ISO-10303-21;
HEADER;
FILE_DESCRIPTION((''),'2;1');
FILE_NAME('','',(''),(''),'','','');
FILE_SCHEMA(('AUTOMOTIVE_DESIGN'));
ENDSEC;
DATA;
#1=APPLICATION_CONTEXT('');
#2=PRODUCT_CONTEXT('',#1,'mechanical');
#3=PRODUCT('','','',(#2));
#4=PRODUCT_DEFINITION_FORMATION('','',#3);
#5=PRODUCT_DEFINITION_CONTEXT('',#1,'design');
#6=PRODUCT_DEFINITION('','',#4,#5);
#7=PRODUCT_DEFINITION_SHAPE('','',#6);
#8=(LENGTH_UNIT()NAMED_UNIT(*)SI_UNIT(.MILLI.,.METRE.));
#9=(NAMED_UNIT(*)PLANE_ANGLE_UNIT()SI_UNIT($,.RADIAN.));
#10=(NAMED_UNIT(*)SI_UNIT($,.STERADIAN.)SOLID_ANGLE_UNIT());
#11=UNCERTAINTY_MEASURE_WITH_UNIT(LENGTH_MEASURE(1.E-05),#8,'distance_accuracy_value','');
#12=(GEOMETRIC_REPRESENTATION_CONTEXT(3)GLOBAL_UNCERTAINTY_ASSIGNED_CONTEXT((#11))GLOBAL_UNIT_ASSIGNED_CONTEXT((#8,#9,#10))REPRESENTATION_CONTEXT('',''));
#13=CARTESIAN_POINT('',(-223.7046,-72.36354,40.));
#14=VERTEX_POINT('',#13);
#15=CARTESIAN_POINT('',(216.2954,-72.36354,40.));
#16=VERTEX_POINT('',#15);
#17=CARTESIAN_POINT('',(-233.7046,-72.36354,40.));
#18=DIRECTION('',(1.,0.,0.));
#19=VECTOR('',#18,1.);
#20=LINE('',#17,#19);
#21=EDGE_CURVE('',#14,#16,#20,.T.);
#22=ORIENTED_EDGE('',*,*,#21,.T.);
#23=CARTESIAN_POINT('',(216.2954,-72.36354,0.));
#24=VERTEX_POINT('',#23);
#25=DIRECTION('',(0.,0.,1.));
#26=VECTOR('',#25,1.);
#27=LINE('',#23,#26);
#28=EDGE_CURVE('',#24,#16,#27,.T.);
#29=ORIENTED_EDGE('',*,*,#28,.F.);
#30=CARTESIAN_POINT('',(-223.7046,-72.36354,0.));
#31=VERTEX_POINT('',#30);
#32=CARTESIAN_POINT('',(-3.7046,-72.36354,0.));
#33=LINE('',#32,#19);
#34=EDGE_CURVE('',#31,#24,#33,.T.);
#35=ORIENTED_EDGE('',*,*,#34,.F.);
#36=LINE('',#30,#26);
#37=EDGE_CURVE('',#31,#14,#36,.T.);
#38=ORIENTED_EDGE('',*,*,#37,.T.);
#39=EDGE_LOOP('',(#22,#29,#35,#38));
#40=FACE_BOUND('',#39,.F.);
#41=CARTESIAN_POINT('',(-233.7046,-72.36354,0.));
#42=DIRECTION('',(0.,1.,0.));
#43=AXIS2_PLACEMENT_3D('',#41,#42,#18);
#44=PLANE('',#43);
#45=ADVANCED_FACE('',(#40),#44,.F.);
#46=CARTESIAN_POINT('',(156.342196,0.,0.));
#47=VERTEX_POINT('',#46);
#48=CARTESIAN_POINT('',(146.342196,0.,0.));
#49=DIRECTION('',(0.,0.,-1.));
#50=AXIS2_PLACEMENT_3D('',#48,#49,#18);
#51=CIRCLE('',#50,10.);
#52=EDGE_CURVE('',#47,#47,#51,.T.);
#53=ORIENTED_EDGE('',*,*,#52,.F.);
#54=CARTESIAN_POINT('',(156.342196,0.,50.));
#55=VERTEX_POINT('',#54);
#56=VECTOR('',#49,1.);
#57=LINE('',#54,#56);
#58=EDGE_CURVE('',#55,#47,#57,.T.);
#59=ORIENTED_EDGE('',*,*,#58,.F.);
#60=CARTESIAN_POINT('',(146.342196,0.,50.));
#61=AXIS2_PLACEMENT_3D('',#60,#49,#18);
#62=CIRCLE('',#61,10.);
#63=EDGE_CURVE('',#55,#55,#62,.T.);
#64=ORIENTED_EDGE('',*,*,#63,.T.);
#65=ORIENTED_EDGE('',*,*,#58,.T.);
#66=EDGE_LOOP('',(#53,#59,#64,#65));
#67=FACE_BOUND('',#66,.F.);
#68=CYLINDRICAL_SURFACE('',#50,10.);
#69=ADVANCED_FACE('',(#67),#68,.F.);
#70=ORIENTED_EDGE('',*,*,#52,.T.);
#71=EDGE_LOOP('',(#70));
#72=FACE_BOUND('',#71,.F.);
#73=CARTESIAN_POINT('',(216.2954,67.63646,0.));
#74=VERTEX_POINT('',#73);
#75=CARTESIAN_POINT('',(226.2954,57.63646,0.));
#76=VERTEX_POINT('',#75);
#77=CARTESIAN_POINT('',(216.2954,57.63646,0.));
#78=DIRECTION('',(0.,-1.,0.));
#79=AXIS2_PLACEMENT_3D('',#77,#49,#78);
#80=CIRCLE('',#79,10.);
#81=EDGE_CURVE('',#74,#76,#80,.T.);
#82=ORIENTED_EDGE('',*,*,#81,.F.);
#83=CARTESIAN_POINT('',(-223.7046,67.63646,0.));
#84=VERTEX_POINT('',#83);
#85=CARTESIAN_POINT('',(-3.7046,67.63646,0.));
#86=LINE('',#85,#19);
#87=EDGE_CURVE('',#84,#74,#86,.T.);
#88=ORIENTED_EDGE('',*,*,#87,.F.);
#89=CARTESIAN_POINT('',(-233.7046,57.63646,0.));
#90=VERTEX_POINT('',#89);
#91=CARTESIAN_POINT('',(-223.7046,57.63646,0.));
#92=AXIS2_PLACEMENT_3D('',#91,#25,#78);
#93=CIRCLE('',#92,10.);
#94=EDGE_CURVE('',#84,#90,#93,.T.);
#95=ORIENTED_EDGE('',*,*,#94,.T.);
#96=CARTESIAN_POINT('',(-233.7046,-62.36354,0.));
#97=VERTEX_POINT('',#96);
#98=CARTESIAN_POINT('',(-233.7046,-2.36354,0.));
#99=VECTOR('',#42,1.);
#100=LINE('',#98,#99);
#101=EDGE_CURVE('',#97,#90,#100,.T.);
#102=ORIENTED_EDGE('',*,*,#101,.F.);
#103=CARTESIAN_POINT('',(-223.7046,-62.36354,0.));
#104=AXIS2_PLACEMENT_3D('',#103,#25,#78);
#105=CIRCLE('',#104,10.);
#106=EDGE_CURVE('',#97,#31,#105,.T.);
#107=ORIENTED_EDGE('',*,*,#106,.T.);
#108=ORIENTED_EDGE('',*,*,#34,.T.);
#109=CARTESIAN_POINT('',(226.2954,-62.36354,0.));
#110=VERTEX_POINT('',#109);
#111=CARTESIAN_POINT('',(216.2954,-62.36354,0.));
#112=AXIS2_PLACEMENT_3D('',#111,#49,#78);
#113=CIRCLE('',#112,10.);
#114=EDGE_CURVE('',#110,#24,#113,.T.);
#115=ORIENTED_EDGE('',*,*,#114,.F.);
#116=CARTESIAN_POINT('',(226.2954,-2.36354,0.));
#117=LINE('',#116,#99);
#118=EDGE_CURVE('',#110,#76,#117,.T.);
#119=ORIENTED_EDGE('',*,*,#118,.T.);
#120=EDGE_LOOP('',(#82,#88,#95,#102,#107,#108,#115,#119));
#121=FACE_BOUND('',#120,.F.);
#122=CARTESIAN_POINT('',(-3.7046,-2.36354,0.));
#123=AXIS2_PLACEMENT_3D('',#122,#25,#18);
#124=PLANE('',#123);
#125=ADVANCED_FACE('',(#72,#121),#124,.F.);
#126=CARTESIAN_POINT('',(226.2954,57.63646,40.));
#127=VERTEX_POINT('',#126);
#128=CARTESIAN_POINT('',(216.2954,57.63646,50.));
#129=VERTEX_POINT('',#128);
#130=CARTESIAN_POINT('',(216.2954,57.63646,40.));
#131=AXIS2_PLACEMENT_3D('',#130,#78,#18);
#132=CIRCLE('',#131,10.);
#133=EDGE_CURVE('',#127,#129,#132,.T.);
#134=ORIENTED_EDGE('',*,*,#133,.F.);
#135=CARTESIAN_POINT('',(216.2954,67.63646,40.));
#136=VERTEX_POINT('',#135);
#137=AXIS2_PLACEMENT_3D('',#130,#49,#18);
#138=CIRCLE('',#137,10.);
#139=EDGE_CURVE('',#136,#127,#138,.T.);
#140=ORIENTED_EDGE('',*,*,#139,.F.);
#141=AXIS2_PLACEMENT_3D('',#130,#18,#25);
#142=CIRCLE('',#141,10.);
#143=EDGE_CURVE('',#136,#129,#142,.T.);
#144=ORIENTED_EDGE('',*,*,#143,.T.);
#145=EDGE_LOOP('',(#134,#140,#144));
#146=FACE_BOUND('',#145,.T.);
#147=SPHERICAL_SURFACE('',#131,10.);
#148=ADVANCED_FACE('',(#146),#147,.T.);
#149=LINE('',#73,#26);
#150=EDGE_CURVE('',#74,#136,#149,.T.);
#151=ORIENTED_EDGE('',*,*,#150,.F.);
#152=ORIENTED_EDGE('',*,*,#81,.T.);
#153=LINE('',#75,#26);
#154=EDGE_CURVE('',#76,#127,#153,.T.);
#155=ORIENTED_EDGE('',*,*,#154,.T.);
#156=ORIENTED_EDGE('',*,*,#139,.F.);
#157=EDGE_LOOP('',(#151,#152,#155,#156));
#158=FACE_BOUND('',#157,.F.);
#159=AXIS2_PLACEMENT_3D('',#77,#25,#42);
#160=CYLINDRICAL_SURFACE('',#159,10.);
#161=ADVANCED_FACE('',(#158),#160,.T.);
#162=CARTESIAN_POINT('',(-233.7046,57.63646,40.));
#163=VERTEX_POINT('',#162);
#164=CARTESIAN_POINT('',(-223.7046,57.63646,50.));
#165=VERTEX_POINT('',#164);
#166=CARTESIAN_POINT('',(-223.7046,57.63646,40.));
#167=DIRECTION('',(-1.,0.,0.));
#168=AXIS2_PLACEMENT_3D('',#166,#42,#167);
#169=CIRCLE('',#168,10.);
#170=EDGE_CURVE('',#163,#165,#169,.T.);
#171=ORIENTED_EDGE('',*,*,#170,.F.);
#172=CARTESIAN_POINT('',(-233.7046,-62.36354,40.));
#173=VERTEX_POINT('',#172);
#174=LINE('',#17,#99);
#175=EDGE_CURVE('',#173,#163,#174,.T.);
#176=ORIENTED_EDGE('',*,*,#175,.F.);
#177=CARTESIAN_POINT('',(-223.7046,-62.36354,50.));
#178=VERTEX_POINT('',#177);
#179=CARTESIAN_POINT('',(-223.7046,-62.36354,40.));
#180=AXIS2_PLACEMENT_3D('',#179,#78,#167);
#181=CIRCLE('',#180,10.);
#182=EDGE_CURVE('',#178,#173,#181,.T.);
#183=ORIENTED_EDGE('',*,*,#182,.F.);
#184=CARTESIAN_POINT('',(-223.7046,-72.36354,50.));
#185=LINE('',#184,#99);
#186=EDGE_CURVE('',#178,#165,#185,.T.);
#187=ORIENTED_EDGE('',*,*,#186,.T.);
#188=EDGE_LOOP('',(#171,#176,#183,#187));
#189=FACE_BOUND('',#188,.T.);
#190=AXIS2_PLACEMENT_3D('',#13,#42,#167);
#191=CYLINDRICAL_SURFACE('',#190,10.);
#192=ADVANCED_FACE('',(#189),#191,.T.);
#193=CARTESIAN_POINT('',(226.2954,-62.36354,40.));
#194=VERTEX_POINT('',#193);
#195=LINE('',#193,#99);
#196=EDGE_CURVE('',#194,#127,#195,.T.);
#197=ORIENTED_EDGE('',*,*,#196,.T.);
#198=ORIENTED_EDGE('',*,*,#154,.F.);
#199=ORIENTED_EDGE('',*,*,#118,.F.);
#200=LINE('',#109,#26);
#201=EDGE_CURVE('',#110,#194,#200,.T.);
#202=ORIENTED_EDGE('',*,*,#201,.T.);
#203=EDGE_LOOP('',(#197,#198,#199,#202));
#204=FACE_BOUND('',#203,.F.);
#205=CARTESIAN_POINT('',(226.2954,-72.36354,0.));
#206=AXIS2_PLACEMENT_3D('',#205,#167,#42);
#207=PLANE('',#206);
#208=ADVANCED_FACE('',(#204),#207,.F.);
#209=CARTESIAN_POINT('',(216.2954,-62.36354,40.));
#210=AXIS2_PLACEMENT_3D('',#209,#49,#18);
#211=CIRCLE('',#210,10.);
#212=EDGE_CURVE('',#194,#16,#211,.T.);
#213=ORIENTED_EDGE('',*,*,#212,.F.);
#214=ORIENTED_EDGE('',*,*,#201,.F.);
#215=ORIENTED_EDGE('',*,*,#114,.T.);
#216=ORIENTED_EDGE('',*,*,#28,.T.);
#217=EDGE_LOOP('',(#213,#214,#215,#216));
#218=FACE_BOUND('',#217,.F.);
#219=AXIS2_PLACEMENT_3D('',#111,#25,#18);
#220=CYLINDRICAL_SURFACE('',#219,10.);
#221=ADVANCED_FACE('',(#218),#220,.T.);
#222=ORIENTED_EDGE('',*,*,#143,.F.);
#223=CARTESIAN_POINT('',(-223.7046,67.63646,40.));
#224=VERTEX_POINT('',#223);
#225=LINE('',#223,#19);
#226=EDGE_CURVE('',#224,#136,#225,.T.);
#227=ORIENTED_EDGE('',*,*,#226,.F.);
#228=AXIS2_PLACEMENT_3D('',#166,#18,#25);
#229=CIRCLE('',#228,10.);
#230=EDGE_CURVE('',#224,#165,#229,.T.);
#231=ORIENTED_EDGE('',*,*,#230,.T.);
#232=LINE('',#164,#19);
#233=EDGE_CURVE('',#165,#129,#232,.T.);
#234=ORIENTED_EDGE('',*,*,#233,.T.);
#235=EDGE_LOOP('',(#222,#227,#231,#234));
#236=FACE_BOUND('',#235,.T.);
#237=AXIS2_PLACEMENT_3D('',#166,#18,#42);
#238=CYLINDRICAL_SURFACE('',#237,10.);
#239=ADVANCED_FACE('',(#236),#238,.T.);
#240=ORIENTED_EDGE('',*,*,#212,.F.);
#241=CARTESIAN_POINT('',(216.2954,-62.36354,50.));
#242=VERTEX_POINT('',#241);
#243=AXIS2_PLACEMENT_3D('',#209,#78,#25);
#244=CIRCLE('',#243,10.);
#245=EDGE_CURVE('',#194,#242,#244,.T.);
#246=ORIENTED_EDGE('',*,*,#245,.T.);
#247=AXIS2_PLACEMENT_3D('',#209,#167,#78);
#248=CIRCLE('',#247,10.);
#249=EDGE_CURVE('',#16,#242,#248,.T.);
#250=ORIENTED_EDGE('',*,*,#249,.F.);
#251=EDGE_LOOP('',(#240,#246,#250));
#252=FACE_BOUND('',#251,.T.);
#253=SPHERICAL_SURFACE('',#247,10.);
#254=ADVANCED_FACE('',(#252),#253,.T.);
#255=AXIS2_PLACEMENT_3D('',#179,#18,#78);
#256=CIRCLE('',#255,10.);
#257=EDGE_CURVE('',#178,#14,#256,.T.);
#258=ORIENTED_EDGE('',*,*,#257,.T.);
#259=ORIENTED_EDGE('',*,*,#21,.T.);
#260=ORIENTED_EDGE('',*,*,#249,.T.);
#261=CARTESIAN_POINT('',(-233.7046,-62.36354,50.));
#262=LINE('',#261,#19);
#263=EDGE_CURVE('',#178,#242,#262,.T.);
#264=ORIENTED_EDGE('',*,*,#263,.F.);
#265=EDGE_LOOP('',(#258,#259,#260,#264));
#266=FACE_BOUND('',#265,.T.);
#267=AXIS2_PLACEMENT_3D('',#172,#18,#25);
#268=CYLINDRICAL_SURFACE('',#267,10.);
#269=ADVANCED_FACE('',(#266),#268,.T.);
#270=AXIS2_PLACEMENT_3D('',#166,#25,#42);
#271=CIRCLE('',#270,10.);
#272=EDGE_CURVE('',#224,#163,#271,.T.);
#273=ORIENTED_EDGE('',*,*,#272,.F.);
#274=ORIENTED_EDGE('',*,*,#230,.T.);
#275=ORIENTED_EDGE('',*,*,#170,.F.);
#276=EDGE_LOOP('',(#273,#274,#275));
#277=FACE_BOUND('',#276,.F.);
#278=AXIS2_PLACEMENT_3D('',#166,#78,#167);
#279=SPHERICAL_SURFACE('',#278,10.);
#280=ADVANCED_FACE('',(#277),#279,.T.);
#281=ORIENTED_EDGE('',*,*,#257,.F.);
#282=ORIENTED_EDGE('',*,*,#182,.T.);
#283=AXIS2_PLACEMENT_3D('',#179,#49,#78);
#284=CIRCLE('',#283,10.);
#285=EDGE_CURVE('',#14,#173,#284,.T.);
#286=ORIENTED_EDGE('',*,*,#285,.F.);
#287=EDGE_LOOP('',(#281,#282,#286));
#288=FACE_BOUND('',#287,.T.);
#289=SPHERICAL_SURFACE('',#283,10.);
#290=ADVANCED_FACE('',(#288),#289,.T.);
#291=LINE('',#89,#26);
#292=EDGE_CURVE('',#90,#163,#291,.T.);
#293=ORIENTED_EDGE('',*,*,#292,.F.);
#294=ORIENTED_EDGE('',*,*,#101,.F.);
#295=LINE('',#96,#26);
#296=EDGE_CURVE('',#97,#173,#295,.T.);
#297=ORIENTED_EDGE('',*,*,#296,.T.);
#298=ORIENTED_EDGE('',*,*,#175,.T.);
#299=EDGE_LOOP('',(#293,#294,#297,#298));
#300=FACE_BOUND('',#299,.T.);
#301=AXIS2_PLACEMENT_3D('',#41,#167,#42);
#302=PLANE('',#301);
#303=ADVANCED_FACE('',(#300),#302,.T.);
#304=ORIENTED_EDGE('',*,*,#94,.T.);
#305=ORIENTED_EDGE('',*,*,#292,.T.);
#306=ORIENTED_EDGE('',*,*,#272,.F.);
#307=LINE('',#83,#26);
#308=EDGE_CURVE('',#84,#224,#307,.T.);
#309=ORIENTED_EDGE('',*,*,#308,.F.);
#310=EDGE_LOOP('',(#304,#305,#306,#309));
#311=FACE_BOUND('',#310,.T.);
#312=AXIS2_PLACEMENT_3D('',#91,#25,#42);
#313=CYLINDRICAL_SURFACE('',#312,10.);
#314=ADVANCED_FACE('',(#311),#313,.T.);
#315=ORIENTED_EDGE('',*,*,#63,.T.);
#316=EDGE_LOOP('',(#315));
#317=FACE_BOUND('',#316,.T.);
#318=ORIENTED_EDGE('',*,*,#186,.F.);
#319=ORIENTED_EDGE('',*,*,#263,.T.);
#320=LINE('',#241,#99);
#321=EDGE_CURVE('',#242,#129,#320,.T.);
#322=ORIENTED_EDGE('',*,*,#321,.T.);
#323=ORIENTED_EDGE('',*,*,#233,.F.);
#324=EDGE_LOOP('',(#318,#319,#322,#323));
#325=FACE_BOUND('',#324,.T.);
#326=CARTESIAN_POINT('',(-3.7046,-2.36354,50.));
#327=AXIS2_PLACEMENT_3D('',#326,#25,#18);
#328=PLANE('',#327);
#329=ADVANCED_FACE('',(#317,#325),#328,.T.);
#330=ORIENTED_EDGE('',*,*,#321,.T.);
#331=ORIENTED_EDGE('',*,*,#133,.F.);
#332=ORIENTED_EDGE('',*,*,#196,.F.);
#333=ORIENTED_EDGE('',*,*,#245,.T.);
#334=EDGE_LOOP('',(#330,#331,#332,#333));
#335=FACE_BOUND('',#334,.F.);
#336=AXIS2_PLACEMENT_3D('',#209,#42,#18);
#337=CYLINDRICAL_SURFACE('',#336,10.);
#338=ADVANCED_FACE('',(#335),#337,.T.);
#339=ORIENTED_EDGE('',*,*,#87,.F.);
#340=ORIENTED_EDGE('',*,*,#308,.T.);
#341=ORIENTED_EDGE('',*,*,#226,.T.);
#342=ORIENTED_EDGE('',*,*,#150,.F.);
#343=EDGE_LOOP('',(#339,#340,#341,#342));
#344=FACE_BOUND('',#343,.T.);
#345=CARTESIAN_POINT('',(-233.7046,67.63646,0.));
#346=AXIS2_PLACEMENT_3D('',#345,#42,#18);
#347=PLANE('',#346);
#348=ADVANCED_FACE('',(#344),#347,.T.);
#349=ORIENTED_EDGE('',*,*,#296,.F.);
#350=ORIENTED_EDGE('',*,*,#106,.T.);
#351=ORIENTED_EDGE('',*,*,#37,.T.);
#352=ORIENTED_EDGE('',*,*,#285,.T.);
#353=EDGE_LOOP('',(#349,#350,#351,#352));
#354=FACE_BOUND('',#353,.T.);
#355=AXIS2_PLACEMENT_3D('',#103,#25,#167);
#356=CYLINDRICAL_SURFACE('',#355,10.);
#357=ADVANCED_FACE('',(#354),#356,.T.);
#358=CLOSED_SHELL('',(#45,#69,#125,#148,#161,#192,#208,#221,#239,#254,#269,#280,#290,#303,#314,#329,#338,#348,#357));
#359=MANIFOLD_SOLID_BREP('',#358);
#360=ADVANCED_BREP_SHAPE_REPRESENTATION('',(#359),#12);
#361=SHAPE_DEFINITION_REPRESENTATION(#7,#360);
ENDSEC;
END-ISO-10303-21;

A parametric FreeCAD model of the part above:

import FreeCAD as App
import Part
import Sketcher

V = App.Vector


def edges_at(feature, points):
    """Names of the edges that pass closest to the given points."""
    edges = feature.Shape.Edges
    near = lambda p: min(range(len(edges)), key=lambda i: edges[i].distToShape(Part.Vertex(*p))[0])
    return sorted({f"Edge{near(p) + 1}" for p in points})


def add_polygon(sketch, points):
    """Adds a closed chain of lines whose ends are joined by coincident constraints."""
    first, n = sketch.GeometryCount, len(points)
    for a, b in zip(points, points[1:] + points[:1]):
        sketch.addGeometry(Part.LineSegment(App.Vector(*a, 0), App.Vector(*b, 0)), False)
    for i in range(n):
        sketch.addConstraint(Sketcher.Constraint("Coincident", first + i, 2, first + (i + 1) % n, 1))

doc = App.newDocument("Part")
body = doc.addObject("PartDesign::Body", "Body")

sketch1 = body.newObject("Sketcher::SketchObject", "Sketch")
sketch1.AttachmentSupport = (doc.getObject("XY_Plane"), [""])
sketch1.MapMode = "FlatFace"
add_polygon(sketch1, [(-234, 68), (-234, -72), (226, -72), (226, 68)])
sketch1.addConstraint([
    Sketcher.Constraint("Vertical", 0),
    Sketcher.Constraint("Horizontal", 1),
    Sketcher.Constraint("Vertical", 2),
    Sketcher.Constraint("Horizontal", 3),
    Sketcher.Constraint("DistanceX", 1, 1, 1, 2, 460.0),
    Sketcher.Constraint("DistanceY", 0, 2, 0, 1, 140.0),
    Sketcher.Constraint("DistanceX", 0, 2, -1, 1, 233.7046),
    Sketcher.Constraint("DistanceY", 0, 2, -1, 1, 72.36354),
])
pad1 = body.newObject("PartDesign::Pad", "Pad")
pad1.Profile = sketch1
pad1.Length = 50

sketch2 = body.newObject("Sketcher::SketchObject", "Sketch001")
sketch2.AttachmentSupport = (doc.getObject("XY_Plane"), [""])
sketch2.MapMode = "FlatFace"
sketch2.addGeometry(Part.Circle(V(146, 0, 0), V(0, 0, 1), 10), False)
sketch2.addConstraint([
    Sketcher.Constraint("PointOnObject", 0, 3, -1),
    Sketcher.Constraint("Diameter", 0, 20.0),
    Sketcher.Constraint("DistanceX", -1, 1, 0, 3, 146.342196),
])
pocket1 = body.newObject("PartDesign::Pocket", "Pocket")
pocket1.Profile = sketch2
pocket1.Length = 25
pocket1.Reversed = True

sketch3 = body.newObject("Sketcher::SketchObject", "Sketch002")
sketch3.AttachmentSupport = (doc.getObject("XY_Plane"), [""])
sketch3.MapMode = "FlatFace"
sketch3.AttachmentOffset = App.Placement(V(0, 0, 25), App.Rotation())
sketch3.addGeometry(Part.Circle(V(146, 0, 0), V(0, 0, 1), 10), False)
sketch3.addConstraint([
    Sketcher.Constraint("PointOnObject", 0, 3, -1),
    Sketcher.Constraint("Diameter", 0, 20.0),
    Sketcher.Constraint("DistanceX", -1, 1, 0, 3, 146.342196),
])
pocket2 = body.newObject("PartDesign::Pocket", "Pocket001")
pocket2.Profile = sketch3
pocket2.Length = 25
pocket2.Reversed = True
doc.recompute()

fillet = body.newObject("PartDesign::Fillet", "Fillet")
fillet.Base = (pocket2, edges_at(pocket2, [(-233.705, -72.364, 25), (-3.705, -72.364, 50), (-233.705, -2.364, 50)]))
fillet.Radius = 10
doc.recompute()

fillet2 = body.newObject("PartDesign::Fillet", "Fillet001")
fillet2.Base = (fillet, edges_at(fillet, [(226.295, -72.364, 20), (226.295, 67.636, 25), (1.295, 67.636, 50)]))
fillet2.Radius = 10

doc.recompute()
